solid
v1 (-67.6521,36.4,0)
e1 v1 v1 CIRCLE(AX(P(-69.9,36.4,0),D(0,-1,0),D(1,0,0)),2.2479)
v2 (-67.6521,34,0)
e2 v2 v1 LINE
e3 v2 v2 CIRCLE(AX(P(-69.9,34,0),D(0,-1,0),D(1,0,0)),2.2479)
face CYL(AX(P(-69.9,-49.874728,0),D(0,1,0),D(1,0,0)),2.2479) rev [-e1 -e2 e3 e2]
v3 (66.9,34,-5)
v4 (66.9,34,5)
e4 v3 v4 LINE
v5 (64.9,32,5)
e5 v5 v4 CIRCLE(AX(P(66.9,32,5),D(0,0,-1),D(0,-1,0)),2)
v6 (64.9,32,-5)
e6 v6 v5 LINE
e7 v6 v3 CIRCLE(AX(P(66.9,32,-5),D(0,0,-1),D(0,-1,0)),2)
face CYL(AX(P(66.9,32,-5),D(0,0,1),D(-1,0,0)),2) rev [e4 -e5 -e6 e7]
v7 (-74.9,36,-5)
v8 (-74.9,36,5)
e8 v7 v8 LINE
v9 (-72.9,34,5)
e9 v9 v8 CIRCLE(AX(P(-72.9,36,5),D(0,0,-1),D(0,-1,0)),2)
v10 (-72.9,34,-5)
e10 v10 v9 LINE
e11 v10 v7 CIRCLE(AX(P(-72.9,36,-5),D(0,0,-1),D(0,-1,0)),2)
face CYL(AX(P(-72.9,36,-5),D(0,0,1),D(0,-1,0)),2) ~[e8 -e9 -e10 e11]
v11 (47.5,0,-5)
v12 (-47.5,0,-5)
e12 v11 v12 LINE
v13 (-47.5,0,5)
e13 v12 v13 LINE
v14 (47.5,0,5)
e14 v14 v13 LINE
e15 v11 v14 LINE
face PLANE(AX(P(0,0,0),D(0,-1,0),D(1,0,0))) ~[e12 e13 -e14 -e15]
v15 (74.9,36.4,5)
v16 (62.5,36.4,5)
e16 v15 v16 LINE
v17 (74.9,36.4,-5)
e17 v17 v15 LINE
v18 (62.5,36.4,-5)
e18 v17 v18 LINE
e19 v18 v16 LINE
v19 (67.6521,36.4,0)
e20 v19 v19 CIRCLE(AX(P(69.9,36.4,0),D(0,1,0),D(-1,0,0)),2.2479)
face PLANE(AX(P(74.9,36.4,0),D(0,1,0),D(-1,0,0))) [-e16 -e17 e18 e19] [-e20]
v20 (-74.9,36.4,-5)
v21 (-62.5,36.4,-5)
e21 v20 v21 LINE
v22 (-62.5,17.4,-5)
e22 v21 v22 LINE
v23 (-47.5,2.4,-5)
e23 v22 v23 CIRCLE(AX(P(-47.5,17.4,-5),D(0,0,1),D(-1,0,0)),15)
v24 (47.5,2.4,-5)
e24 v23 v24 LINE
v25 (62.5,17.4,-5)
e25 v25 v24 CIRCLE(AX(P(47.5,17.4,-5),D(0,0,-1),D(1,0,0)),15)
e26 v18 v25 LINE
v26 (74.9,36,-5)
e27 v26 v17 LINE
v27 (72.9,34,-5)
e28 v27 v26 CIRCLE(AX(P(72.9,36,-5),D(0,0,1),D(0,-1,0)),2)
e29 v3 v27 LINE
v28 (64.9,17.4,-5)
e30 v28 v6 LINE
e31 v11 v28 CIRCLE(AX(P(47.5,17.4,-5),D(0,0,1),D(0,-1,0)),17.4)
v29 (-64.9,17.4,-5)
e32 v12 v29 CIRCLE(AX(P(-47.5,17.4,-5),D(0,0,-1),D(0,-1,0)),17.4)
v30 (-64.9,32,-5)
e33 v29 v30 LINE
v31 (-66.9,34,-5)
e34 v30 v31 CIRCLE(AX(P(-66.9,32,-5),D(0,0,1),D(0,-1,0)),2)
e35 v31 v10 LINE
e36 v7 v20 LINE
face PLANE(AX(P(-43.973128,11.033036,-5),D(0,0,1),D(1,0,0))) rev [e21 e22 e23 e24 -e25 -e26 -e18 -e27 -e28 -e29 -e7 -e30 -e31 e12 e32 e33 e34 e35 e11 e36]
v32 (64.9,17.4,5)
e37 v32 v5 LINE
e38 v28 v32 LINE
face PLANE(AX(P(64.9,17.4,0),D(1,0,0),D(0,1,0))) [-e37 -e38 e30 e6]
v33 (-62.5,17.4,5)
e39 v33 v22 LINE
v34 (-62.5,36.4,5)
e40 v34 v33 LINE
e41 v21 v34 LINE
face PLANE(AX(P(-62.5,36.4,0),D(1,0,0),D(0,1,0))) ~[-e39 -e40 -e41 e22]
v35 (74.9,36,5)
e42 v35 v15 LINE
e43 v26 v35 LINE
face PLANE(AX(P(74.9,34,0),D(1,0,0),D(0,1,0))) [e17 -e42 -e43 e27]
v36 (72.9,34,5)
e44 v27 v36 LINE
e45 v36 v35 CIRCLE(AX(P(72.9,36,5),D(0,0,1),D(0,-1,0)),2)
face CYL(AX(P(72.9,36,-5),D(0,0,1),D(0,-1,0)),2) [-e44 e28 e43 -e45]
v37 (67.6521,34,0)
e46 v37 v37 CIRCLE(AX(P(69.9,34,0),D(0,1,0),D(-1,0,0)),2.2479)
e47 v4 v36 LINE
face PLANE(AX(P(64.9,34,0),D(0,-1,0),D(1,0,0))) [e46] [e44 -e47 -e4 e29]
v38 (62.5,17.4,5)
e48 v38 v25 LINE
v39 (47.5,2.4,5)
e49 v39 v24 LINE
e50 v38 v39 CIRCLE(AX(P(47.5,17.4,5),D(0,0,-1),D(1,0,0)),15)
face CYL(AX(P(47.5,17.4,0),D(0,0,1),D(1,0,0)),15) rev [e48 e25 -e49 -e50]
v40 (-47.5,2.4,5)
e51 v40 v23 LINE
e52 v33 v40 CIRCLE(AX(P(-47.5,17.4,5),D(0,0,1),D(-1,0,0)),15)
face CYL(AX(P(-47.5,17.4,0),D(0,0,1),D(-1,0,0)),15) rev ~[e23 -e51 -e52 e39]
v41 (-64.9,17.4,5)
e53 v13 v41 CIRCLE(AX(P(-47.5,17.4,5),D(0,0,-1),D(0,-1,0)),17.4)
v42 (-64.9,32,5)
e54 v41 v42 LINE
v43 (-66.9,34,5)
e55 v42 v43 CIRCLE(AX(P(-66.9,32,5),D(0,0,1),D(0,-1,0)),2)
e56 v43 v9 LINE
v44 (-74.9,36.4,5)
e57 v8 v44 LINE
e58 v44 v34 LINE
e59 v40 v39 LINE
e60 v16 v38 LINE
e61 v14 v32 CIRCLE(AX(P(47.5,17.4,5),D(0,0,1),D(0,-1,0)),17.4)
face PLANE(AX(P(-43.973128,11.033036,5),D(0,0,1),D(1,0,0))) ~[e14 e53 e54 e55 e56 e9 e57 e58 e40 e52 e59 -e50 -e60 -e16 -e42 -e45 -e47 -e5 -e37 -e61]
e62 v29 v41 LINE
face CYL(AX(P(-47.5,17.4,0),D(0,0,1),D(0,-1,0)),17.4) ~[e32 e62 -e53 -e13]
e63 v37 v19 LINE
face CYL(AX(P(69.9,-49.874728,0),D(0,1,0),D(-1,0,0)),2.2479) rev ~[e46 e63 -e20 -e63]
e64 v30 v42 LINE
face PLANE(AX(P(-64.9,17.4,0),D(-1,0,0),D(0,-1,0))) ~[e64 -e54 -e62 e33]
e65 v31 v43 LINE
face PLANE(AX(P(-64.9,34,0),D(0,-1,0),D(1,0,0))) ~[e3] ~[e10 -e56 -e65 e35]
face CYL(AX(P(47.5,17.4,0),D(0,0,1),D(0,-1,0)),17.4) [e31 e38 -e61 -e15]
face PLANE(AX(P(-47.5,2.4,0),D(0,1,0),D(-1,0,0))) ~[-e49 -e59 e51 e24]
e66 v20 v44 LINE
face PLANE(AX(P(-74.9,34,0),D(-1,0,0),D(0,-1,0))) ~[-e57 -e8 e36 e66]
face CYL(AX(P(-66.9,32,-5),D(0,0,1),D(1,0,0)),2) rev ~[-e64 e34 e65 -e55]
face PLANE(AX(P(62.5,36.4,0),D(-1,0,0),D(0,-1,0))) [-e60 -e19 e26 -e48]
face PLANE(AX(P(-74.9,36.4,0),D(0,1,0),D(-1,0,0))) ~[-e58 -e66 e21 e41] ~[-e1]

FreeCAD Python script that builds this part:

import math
import FreeCAD as App
import Part
import Sketcher


def edges_at(feature, points):
    """Names of the edges that pass closest to the given points."""
    edges = feature.Shape.Edges
    near = lambda p: min(range(len(edges)), key=lambda i: edges[i].distToShape(Part.Vertex(*p))[0])
    return sorted({f"Edge{near(p) + 1}" for p in points})

doc = App.newDocument("Part")
body = doc.addObject("PartDesign::Body", "Body")

sketch1 = doc.addObject("Sketcher::SketchObject", "Sketch")
body.addObject(sketch1)
sketch1.AttachmentSupport = (doc.XY_Plane, [""])
sketch1.MapMode = "FlatFace"
sketch1.addGeometry([
    Part.LineSegment(App.Vector(0, 2.4, 0), App.Vector(0, 0, 0)),
    Part.LineSegment(App.Vector(0, 0, 0), App.Vector(47.5, 0, 0)),
    Part.ArcOfCircle(Part.Circle(App.Vector(47.5, 17.4, 0), App.Vector(0, 0, 1), 17.4), math.radians(-90), math.radians(0)),
    Part.LineSegment(App.Vector(64.9, 17.4, 0), App.Vector(64.9, 34, 0)),
    Part.LineSegment(App.Vector(64.9, 34, 0), App.Vector(74.9, 34, 0)),
    Part.LineSegment(App.Vector(74.9, 34, 0), App.Vector(74.9, 36.4, 0)),
    Part.LineSegment(App.Vector(74.9, 36.4, 0), App.Vector(62.5, 36.4, 0)),
    Part.LineSegment(App.Vector(62.5, 36.4, 0), App.Vector(62.5, 17.4, 0)),
    Part.ArcOfCircle(Part.Circle(App.Vector(47.5, 17.4, 0), App.Vector(0, 0, 1), 15), math.radians(-90), math.radians(0)),
    Part.LineSegment(App.Vector(47.5, 2.4, 0), App.Vector(0, 2.4, 0)),
], False)
sketch1.addConstraint([
    Sketcher.Constraint("Coincident", 0, 2, 1, 1),
    Sketcher.Constraint("Tangent", 1, 2, 2, 1),
    Sketcher.Constraint("Tangent", 2, 2, 3, 1),
    Sketcher.Constraint("Coincident", 3, 2, 4, 1),
    Sketcher.Constraint("Coincident", 4, 2, 5, 1),
    Sketcher.Constraint("Coincident", 5, 2, 6, 1),
    Sketcher.Constraint("Coincident", 6, 2, 7, 1),
    Sketcher.Constraint("Tangent", 7, 2, 8, 2),
    Sketcher.Constraint("Tangent", 8, 1, 9, 1),
    Sketcher.Constraint("Coincident", 9, 2, 0, 1),
    Sketcher.Constraint("Vertical", 0),
    Sketcher.Constraint("Horizontal", 1),
    Sketcher.Constraint("Vertical", 3),
    Sketcher.Constraint("Horizontal", 4),
    Sketcher.Constraint("Vertical", 5),
    Sketcher.Constraint("Horizontal", 6),
    Sketcher.Constraint("Vertical", 7),
    Sketcher.Constraint("Horizontal", 9),
    Sketcher.Constraint("Coincident", 0, 2, -1, 1),
    Sketcher.Constraint("Coincident", 8, 3, 2, 3),
    Sketcher.Constraint("Equal", 0, 5),
    Sketcher.Constraint("Radius", 8, 15.0),
    Sketcher.Constraint("Radius", 2, 17.4),
    Sketcher.Constraint("DistanceX", 4, 1, 4, 2, 10.0),
    Sketcher.Constraint("DistanceY", 7, 2, 7, 1, 19.0),
    Sketcher.Constraint("DistanceX", 1, 1, 1, 2, 47.5),
])
pad1 = doc.addObject("PartDesign::Pad", "Pad")
body.addObject(pad1)
pad1.Profile = sketch1
pad1.Length = 10
pad1.Midplane = True

sketch2 = doc.addObject("Sketcher::SketchObject", "Sketch001")
body.addObject(sketch2)
sketch2.AttachmentSupport = (doc.XZ_Plane, [""])
sketch2.MapMode = "FlatFace"
sketch2.AttachmentOffset = App.Placement(App.Vector(0, 0, -34), App.Rotation())
sketch2.addGeometry(Part.Circle(App.Vector(69.9, 0, 0), App.Vector(0, 0, 1), 2.2), False)
sketch2.addConstraint([
    Sketcher.Constraint("PointOnObject", 0, 3, -1),
    Sketcher.Constraint("Diameter", 0, 4.4958),
    Sketcher.Constraint("DistanceX", -1, 1, 0, 3, 69.9),
])
doc.recompute()
hole = doc.addObject("PartDesign::Hole", "Hole")
body.addObject(hole)
hole.Profile = sketch2
hole.ThreadType = "None"
hole.Diameter = 4.4958
hole.DepthType = "ThroughAll"
doc.recompute()

fillet = doc.addObject("PartDesign::Fillet", "Fillet")
body.addObject(fillet)
fillet.Base = (hole, edges_at(hole, [(64.9, 34, 0), (74.9, 34, 0)]))
fillet.Radius = 2
body2 = doc.addObject("PartDesign::Body", "Body001")
doc.recompute()

body2.BaseFeature = body
doc.recompute()

mirroring = doc.addObject("Part::Mirroring", "Mirroring")
mirroring.Source = body
mirroring.Base = App.Vector(0, 1.2, 0)
mirroring.Normal = App.Vector(-1, 0, 0)
body3 = doc.addObject("PartDesign::Body", "Body002")
body3.BaseFeature = mirroring
boolean = doc.addObject("PartDesign::Boolean", "Boolean")
body2.addObject(boolean)
boolean.Type = "Fuse"
boolean.addObjects([body3])
doc.recompute()
mirroring.Visibility = False

doc.recompute()
